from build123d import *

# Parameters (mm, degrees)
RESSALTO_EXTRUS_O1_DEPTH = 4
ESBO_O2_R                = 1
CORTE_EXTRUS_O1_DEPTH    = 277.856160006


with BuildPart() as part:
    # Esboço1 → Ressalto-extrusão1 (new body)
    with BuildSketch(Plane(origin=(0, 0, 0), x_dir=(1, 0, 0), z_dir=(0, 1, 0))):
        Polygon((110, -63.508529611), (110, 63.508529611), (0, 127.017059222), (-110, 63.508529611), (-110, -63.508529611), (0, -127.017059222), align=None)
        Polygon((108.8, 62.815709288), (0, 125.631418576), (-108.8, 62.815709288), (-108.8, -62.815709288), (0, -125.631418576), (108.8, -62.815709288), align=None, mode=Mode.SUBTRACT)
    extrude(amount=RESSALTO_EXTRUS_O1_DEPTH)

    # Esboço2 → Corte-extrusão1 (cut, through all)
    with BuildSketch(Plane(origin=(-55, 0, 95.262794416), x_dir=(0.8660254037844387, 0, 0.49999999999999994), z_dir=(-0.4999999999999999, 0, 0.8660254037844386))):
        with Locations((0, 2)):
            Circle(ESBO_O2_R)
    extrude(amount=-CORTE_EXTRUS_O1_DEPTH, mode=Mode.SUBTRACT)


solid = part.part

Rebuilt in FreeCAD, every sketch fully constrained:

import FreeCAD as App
import Part
import Sketcher
Q = App.Units.Quantity

doc = App.newDocument("Part")
body = doc.addObject("PartDesign::Body", "Body")

# Sketch on XZ plane
sketch1 = doc.addObject("Sketcher::SketchObject", "Sketch")
body.addObject(sketch1)
sketch1.AttachmentSupport = (doc.XZ_Plane, [""])
sketch1.MapMode = "FlatFace"
sketch1.addGeometry([
    Part.LineSegment(App.Vector(110, 63.50853, 0), App.Vector(110, -63.50853, 0)),  # 0
    Part.LineSegment(App.Vector(110, -63.50853, 0), App.Vector(0, -127.017059, 0)),  # 1
    Part.LineSegment(App.Vector(0, -127.017059, 0), App.Vector(-110, -63.50853, 0)),  # 2
    Part.LineSegment(App.Vector(-110, -63.50853, 0), App.Vector(-110, 63.50853, 0)),  # 3
    Part.LineSegment(App.Vector(-110, 63.50853, 0), App.Vector(0, 127.017059, 0)),  # 4
    Part.LineSegment(App.Vector(0, 127.017059, 0), App.Vector(110, 63.50853, 0)),  # 5
    Part.LineSegment(App.Vector(0, -125.631419, 0), App.Vector(108.8, -62.815709, 0)),  # 6
    Part.LineSegment(App.Vector(108.8, -62.815709, 0), App.Vector(108.8, 62.815709, 0)),  # 7
    Part.LineSegment(App.Vector(108.8, 62.815709, 0), App.Vector(0, 125.631419, 0)),  # 8
    Part.LineSegment(App.Vector(0, 125.631419, 0), App.Vector(-108.8, 62.815709, 0)),  # 9
    Part.LineSegment(App.Vector(-108.8, 62.815709, 0), App.Vector(-108.8, -62.815709, 0)),  # 10
    Part.LineSegment(App.Vector(-108.8, -62.815709, 0), App.Vector(0, -125.631419, 0)),  # 11
], False)
sketch1.addConstraint([
    Sketcher.Constraint("Coincident", 0, 2, 1, 1),
    Sketcher.Constraint("Coincident", 1, 2, 2, 1),
    Sketcher.Constraint("Coincident", 2, 2, 3, 1),
    Sketcher.Constraint("Coincident", 3, 2, 4, 1),
    Sketcher.Constraint("Coincident", 4, 2, 5, 1),
    Sketcher.Constraint("Coincident", 5, 2, 0, 1),
    Sketcher.Constraint("Coincident", 6, 2, 7, 1),
    Sketcher.Constraint("Coincident", 7, 2, 8, 1),
    Sketcher.Constraint("Coincident", 8, 2, 9, 1),
    Sketcher.Constraint("Coincident", 9, 2, 10, 1),
    Sketcher.Constraint("Coincident", 10, 2, 11, 1),
    Sketcher.Constraint("Coincident", 11, 2, 6, 1),
    Sketcher.Constraint("Vertical", 0),
    Sketcher.Constraint("Vertical", 3),
    Sketcher.Constraint("Vertical", 7),
    Sketcher.Constraint("Vertical", 10),
    Sketcher.Constraint("Symmetric", 0, 2, 3, 2, -1, 1),
    Sketcher.Constraint("Symmetric", 1, 2, 4, 2, -1, 1),
    Sketcher.Constraint("Symmetric", 6, 2, 9, 2, -1, 1),
    Sketcher.Constraint("Symmetric", 8, 2, 11, 2, -1, 1),
    Sketcher.Constraint("PointOnObject", 1, 2, -2),
    Sketcher.Constraint("PointOnObject", 8, 2, -2),
    Sketcher.Constraint("Parallel", 2, 5),
    Sketcher.Constraint("Parallel", 4, 6),
    Sketcher.Constraint("Parallel", 5, 8),
    Sketcher.Constraint("Parallel", 8, 11),
    Sketcher.Constraint("Horizontal", 0, 2, 2, 2),
    Sketcher.Constraint("Angle", 1, Q("-150 deg")),
    Sketcher.Constraint("DistanceX", -1, 1, 0, 2, 110.0),
    Sketcher.Constraint("DistanceX", -1, 1, 6, 2, 108.8),
    Sketcher.Constraint("DistanceY", 0, 2, 0, 1, 127.017059),
    Sketcher.Constraint("DistanceY", 7, 1, 7, 2, 125.631419),
])
pad1 = doc.addObject("PartDesign::Pad", "Pad")
body.addObject(pad1)
pad1.Profile = sketch1
pad1.Length = 4
pad1.Reversed = True

# Sketch on an angled plane
sketch2 = doc.addObject("Sketcher::SketchObject", "Sketch001")
body.addObject(sketch2)
sketch2.Placement = App.Placement(App.Vector(-55, 0, 95.262794), App.Rotation(App.Vector(0.866025404, 0, 0.5), App.Vector(0, 1, 0), App.Vector(-0.5, 0, 0.866025404), "ZXY"))
sketch2.addGeometry(Part.Circle(App.Vector(0, 2, 0), App.Vector(0, 0, 1), 1), False)
sketch2.addConstraint([
    Sketcher.Constraint("PointOnObject", 0, 3, -2),
    Sketcher.Constraint("Diameter", 0, 2.0),
    Sketcher.Constraint("DistanceY", -1, 1, 0, 3, 2.0),
])
pocket1 = doc.addObject("PartDesign::Pocket", "Pocket")
body.addObject(pocket1)
pocket1.Profile = sketch2
pocket1.Type = "ThroughAll"

doc.recompute()
